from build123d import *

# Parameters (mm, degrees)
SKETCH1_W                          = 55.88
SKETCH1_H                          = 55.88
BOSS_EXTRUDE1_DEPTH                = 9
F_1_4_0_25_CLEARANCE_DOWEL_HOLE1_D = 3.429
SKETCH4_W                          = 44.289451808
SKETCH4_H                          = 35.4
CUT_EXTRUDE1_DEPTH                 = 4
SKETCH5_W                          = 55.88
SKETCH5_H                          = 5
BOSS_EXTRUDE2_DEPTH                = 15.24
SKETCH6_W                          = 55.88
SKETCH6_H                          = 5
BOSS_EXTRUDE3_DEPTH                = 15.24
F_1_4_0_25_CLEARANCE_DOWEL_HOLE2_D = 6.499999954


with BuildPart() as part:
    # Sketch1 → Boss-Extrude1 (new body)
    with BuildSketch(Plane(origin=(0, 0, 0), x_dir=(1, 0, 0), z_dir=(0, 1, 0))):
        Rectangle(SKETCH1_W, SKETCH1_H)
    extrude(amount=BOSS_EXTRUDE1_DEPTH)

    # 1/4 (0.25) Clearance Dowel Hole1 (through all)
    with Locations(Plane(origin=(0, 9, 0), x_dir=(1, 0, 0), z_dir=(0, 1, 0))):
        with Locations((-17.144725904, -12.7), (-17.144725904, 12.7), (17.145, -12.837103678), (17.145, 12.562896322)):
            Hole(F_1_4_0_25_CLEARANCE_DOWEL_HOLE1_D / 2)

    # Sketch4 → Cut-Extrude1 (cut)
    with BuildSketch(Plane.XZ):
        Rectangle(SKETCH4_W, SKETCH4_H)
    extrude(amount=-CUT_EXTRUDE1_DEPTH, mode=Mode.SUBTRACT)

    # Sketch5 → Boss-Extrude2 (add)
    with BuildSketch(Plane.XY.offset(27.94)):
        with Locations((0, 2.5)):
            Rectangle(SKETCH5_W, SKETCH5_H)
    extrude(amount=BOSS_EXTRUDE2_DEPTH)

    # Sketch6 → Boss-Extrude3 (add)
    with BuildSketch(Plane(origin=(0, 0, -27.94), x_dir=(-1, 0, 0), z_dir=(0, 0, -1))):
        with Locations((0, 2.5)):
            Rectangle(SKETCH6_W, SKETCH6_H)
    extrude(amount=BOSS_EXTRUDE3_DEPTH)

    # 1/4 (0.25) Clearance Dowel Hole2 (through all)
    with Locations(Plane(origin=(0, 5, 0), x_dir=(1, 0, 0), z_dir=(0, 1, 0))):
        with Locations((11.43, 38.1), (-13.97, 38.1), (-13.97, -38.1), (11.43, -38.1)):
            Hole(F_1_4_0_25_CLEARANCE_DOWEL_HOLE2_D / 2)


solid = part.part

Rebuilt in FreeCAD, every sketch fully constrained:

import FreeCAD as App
import Part
import Sketcher
Q = App.Units.Quantity


def add_polygon(sketch, points):
    """Adds a closed chain of lines whose ends are joined by coincident constraints."""
    first, n = sketch.GeometryCount, len(points)
    for a, b in zip(points, points[1:] + points[:1]):
        sketch.addGeometry(Part.LineSegment(App.Vector(*a, 0), App.Vector(*b, 0)), False)
    for i in range(n):
        sketch.addConstraint(Sketcher.Constraint("Coincident", first + i, 2, first + (i + 1) % n, 1))

doc = App.newDocument("Part")
params = doc.addObject("Spreadsheet::Sheet", "Params")
for row, (alias, value) in enumerate([
    ("sketch1_width", "55.88 mm"),
    ("pad1_length", "9 mm"),
    ("hole_diameter", "3.429 mm"),
    ("sketch3_height", "35.4 mm"),
    ("pocket1_length", "4 mm"),
    ("sketch4_height", "5 mm"),
    ("sketch4_width", "55.88 mm"),
    ("pad2_length", "15.24 mm"),
    ("sketch5_height", "5 mm"),
    ("sketch5_width", "55.88 mm"),
    ("pad3_length", "15.24 mm"),
    ("sketch6_diameter", "6.5 mm"),
    ("hole2_diameter", "6.5 mm"),
], start=1):
    params.set(f"A{row}", alias)
    params.set(f"B{row}", "=" + value)
    params.setAlias(f"B{row}", alias)

body = doc.addObject("PartDesign::Body", "Body")

# Sketch on XZ plane
sketch1 = doc.addObject("Sketcher::SketchObject", "Sketch")
body.addObject(sketch1)
sketch1.AttachmentSupport = (doc.XZ_Plane, [""])
sketch1.MapMode = "FlatFace"
add_polygon(sketch1, [(-28, -28), (-28, 28), (28, 28), (28, -28)])  # lines 0-3
sketch1.addConstraint([
    Sketcher.Constraint("Vertical", 0),
    Sketcher.Constraint("Horizontal", 1),
    Sketcher.Constraint("Vertical", 2),
    Sketcher.Constraint("Horizontal", 3),
    Sketcher.Constraint("Symmetric", 0, 2, 2, 2, -1, 1),
    Sketcher.Constraint("Equal", 3, 0),
    Sketcher.Constraint("DistanceX", 1, 1, 1, 2, Q("55.88 mm")),
])
sketch1.setExpression("Constraints[10]", "Params.sketch1_width")
pad1 = doc.addObject("PartDesign::Pad", "Pad")
body.addObject(pad1)
pad1.Profile = sketch1
pad1.setExpression("Length", "Params.pad1_length")
pad1.Reversed = True

# Sketch on XZ plane
sketch2 = doc.addObject("Sketcher::SketchObject", "Sketch001")
body.addObject(sketch2)
sketch2.AttachmentSupport = (doc.XZ_Plane, [""])
sketch2.MapMode = "FlatFace"
sketch2.AttachmentOffset = App.Placement(App.Vector(0, 0, -9), App.Rotation())
sketch2.addGeometry([
    Part.Circle(App.Vector(-17.1, 12.7, 0), App.Vector(0, 0, 1), 1.7),
    Part.Circle(App.Vector(-17.1, -12.7, 0), App.Vector(0, 0, 1), 1.7),
    Part.Circle(App.Vector(17.1, 12.8, 0), App.Vector(0, 0, 1), 1.7),
    Part.Circle(App.Vector(17.1, -12.6, 0), App.Vector(0, 0, 1), 1.7),
], False)
sketch2.addConstraint([
    Sketcher.Constraint("Equal", 0, 1),
    Sketcher.Constraint("Equal", 1, 2),
    Sketcher.Constraint("Equal", 2, 3),
    Sketcher.Constraint("Symmetric", 0, 3, 1, 3, -1),
    Sketcher.Constraint("Vertical", 2, 3, 3, 3),
    Sketcher.Constraint("Diameter", 0, Q("3.429 mm")),
    Sketcher.Constraint("DistanceY", -1, 1, 0, 3, Q("12.7 mm")),
    Sketcher.Constraint("DistanceY", 3, 3, 2, 3, Q("25.4 mm")),
    Sketcher.Constraint("DistanceX", -1, 1, 2, 3, Q("17.145 mm")),
    Sketcher.Constraint("DistanceX", 0, 3, -1, 1, Q("17.144726 mm")),
    Sketcher.Constraint("DistanceY", -1, 1, 2, 3, Q("12.837104 mm")),
])
doc.recompute()
hole = doc.addObject("PartDesign::Hole", "Hole")
body.addObject(hole)
hole.Profile = sketch2
hole.ThreadType = "None"
hole.setExpression("Diameter", "Params.hole_diameter")
hole.DepthType = "ThroughAll"
hole.Reversed = True

# Sketch on XZ plane
sketch3 = doc.addObject("Sketcher::SketchObject", "Sketch002")
body.addObject(sketch3)
sketch3.AttachmentSupport = (doc.XZ_Plane, [""])
sketch3.MapMode = "FlatFace"
add_polygon(sketch3, [(-22, 18), (-22, -18), (22, -18), (22, 18)])  # lines 0-3
sketch3.addConstraint([
    Sketcher.Constraint("Vertical", 0),
    Sketcher.Constraint("Horizontal", 1),
    Sketcher.Constraint("Vertical", 2),
    Sketcher.Constraint("Horizontal", 3),
    Sketcher.Constraint("Symmetric", 0, 2, 2, 2, -1, 1),
    Sketcher.Constraint("DistanceY", 0, 2, 0, 1, Q("35.4 mm")),
    Sketcher.Constraint("DistanceX", 1, 1, 1, 2, Q("44.289452 mm")),
])
sketch3.setExpression("Constraints[9]", "Params.sketch3_height")
pocket1 = doc.addObject("PartDesign::Pocket", "Pocket")
body.addObject(pocket1)
pocket1.Profile = sketch3
pocket1.setExpression("Length", "Params.pocket1_length")

# Sketch on XY plane
sketch4 = doc.addObject("Sketcher::SketchObject", "Sketch003")
body.addObject(sketch4)
sketch4.AttachmentSupport = (doc.XY_Plane, [""])
sketch4.MapMode = "FlatFace"
sketch4.AttachmentOffset = App.Placement(App.Vector(0, 0, 27.94), App.Rotation())
add_polygon(sketch4, [(-28, 5), (-28, 0), (28, 0), (28, 5)])  # lines 0-3
sketch4.addConstraint([
    Sketcher.Constraint("Vertical", 0),
    Sketcher.Constraint("Horizontal", 1),
    Sketcher.Constraint("Vertical", 2),
    Sketcher.Constraint("Horizontal", 3),
    Sketcher.Constraint("Symmetric", 0, 2, 1, 2, -1, 1),
    Sketcher.Constraint("DistanceY", 0, 2, 0, 1, Q("5 mm")),
    Sketcher.Constraint("DistanceX", 1, 1, 1, 2, Q("55.88 mm")),
])
sketch4.setExpression("Constraints[9]", "Params.sketch4_height")
sketch4.setExpression("Constraints[10]", "Params.sketch4_width")
pad2 = doc.addObject("PartDesign::Pad", "Pad001")
body.addObject(pad2)
pad2.Profile = sketch4
pad2.setExpression("Length", "Params.pad2_length")

# Sketch on XY plane
sketch5 = doc.addObject("Sketcher::SketchObject", "Sketch004")
body.addObject(sketch5)
sketch5.AttachmentSupport = (doc.XY_Plane, [""])
sketch5.MapMode = "FlatFace"
sketch5.AttachmentOffset = App.Placement(App.Vector(0, 0, -27.94), App.Rotation())
add_polygon(sketch5, [(28, 5), (28, 0), (-28, 0), (-28, 5)])  # lines 0-3
sketch5.addConstraint([
    Sketcher.Constraint("Vertical", 0),
    Sketcher.Constraint("Horizontal", 1),
    Sketcher.Constraint("Vertical", 2),
    Sketcher.Constraint("Horizontal", 3),
    Sketcher.Constraint("Symmetric", 0, 2, 1, 2, -1, 1),
    Sketcher.Constraint("DistanceY", 0, 2, 0, 1, Q("5 mm")),
    Sketcher.Constraint("DistanceX", 1, 2, 1, 1, Q("55.88 mm")),
])
sketch5.setExpression("Constraints[9]", "Params.sketch5_height")
sketch5.setExpression("Constraints[10]", "Params.sketch5_width")
pad3 = doc.addObject("PartDesign::Pad", "Pad002")
body.addObject(pad3)
pad3.Profile = sketch5
pad3.setExpression("Length", "Params.pad3_length")
pad3.Reversed = True

# Sketch on XZ plane
sketch6 = doc.addObject("Sketcher::SketchObject", "Sketch005")
body.addObject(sketch6)
sketch6.AttachmentSupport = (doc.XZ_Plane, [""])
sketch6.MapMode = "FlatFace"
sketch6.AttachmentOffset = App.Placement(App.Vector(0, 0, -5), App.Rotation())
sketch6.addGeometry([
    Part.Circle(App.Vector(11.4, -38.1, 0), App.Vector(0, 0, 1), 3.2),
    Part.Circle(App.Vector(-14, -38.1, 0), App.Vector(0, 0, 1), 3.2),
    Part.Circle(App.Vector(-14, 38.1, 0), App.Vector(0, 0, 1), 3.2),
    Part.Circle(App.Vector(11.4, 38.1, 0), App.Vector(0, 0, 1), 3.2),
], False)
sketch6.addConstraint([
    Sketcher.Constraint("Equal", 0, 1),
    Sketcher.Constraint("Equal", 1, 2),
    Sketcher.Constraint("Equal", 2, 3),
    Sketcher.Constraint("Symmetric", 1, 3, 2, 3, -1),
    Sketcher.Constraint("Symmetric", 0, 3, 3, 3, -1),
    Sketcher.Constraint("Horizontal", 0, 3, 1, 3),
    Sketcher.Constraint("Diameter", 0, Q("6.5 mm")),
    Sketcher.Constraint("DistanceY", 0, 3, -1, 1, Q("38.1 mm")),
    Sketcher.Constraint("DistanceX", 1, 3, 0, 3, Q("25.4 mm")),
    Sketcher.Constraint("DistanceX", -1, 1, 0, 3, Q("11.43 mm")),
])
sketch6.setExpression("Constraints[6]", "Params.sketch6_diameter")
doc.recompute()
hole2 = doc.addObject("PartDesign::Hole", "Hole001")
body.addObject(hole2)
hole2.Profile = sketch6
hole2.ThreadType = "None"
hole2.setExpression("Diameter", "Params.hole2_diameter")
hole2.DepthType = "ThroughAll"
hole2.Reversed = True

doc.recompute()
